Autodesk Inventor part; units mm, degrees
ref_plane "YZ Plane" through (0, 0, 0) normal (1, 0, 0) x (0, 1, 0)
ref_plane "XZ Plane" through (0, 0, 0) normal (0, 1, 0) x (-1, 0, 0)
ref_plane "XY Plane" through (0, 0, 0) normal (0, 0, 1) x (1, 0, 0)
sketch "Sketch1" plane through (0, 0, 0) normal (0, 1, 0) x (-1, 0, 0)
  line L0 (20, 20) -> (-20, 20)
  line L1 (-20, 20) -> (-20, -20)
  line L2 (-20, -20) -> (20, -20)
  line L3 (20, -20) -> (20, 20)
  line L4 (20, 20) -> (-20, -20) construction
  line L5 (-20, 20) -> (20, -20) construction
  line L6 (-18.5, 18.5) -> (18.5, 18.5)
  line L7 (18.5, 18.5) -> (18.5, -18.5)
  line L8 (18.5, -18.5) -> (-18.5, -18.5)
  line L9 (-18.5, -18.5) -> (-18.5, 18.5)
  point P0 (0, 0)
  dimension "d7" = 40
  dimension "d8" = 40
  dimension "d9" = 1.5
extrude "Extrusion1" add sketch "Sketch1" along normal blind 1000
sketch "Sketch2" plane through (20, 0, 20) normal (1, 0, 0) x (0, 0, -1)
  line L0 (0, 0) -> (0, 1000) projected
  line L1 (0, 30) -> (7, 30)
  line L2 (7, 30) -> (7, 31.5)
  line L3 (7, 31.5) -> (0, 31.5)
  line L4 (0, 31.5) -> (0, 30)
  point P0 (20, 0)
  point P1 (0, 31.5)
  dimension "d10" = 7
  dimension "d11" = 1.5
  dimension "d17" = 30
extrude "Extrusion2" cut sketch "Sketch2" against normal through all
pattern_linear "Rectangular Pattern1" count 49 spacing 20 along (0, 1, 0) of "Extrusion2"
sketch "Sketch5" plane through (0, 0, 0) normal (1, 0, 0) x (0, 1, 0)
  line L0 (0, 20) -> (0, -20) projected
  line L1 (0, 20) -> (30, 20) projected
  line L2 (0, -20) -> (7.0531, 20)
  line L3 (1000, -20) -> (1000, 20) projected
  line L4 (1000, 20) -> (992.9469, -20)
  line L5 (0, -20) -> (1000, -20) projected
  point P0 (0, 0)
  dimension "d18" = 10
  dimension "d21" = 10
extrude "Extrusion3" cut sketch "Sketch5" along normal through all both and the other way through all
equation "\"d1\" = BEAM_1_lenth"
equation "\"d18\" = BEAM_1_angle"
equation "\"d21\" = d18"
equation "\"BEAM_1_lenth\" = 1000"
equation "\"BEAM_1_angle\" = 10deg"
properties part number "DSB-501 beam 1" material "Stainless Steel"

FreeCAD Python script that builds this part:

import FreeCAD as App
import Part
import Sketcher
Q = App.Units.Quantity

doc = App.newDocument("Part")
params = doc.addObject("Spreadsheet::Sheet", "Params")
for row, (alias, value) in enumerate([
    ("sketch1_width", "40 mm"),
    ("pad1_length", "1000 mm"),
    ("sketch2_height", "7 mm"),
    ("sketch2_width", "1.5 mm"),
    ("linearpattern_pitch", "20 mm"),
    ("sketch3_height", "40 mm"),
], start=1):
    params.set(f"A{row}", alias)
    params.set(f"B{row}", "=" + value)
    params.setAlias(f"B{row}", alias)

body = doc.addObject("PartDesign::Body", "Body")

# Sketch on XZ plane
sketch1 = body.newObject("Sketcher::SketchObject", "Sketch")
sketch1.AttachmentSupport = (doc.getObject("XZ_Plane"), [""])
sketch1.MapMode = "FlatFace"
sketch1.addGeometry([
    Part.LineSegment(App.Vector(-20, -20, 0), App.Vector(-20, 20, 0)),  # 0
    Part.LineSegment(App.Vector(-20, 20, 0), App.Vector(20, 20, 0)),  # 1
    Part.LineSegment(App.Vector(20, 20, 0), App.Vector(20, -20, 0)),  # 2
    Part.LineSegment(App.Vector(20, -20, 0), App.Vector(-20, -20, 0)),  # 3
    Part.LineSegment(App.Vector(18, -18, 0), App.Vector(18, 18, 0)),  # 4
    Part.LineSegment(App.Vector(18, 18, 0), App.Vector(-18, 18, 0)),  # 5
    Part.LineSegment(App.Vector(-18, 18, 0), App.Vector(-18, -18, 0)),  # 6
    Part.LineSegment(App.Vector(-18, -18, 0), App.Vector(18, -18, 0)),  # 7
], False)
sketch1.addConstraint([
    Sketcher.Constraint("Coincident", 0, 2, 1, 1),
    Sketcher.Constraint("Coincident", 1, 2, 2, 1),
    Sketcher.Constraint("Coincident", 2, 2, 3, 1),
    Sketcher.Constraint("Coincident", 3, 2, 0, 1),
    Sketcher.Constraint("Coincident", 4, 2, 5, 1),
    Sketcher.Constraint("Coincident", 5, 2, 6, 1),
    Sketcher.Constraint("Coincident", 6, 2, 7, 1),
    Sketcher.Constraint("Coincident", 7, 2, 4, 1),
    Sketcher.Constraint("Vertical", 0),
    Sketcher.Constraint("Horizontal", 1),
    Sketcher.Constraint("Vertical", 2),
    Sketcher.Constraint("Horizontal", 3),
    Sketcher.Constraint("Vertical", 4),
    Sketcher.Constraint("Horizontal", 5),
    Sketcher.Constraint("Vertical", 6),
    Sketcher.Constraint("Horizontal", 7),
    Sketcher.Constraint("Symmetric", 0, 2, 2, 2, -1, 1),
    Sketcher.Constraint("Symmetric", 4, 2, 6, 2, -1, 1),
    Sketcher.Constraint("Equal", 3, 0),
    Sketcher.Constraint("Equal", 7, 4),
    Sketcher.Constraint("DistanceX", 1, 1, 1, 2, Q("40 mm")),
    Sketcher.Constraint("DistanceX", 4, 2, 1, 2, Q("1.5 mm")),
])
sketch1.setExpression("Constraints[20]", "Params.sketch1_width")
pad1 = body.newObject("PartDesign::Pad", "Pad")
pad1.Profile = sketch1
pad1.setExpression("Length", "Params.pad1_length")
pad1.Reversed = True

# Sketch on YZ plane
sketch2 = body.newObject("Sketcher::SketchObject", "Sketch001")
sketch2.AttachmentSupport = (doc.getObject("YZ_Plane"), [""])
sketch2.MapMode = "FlatFace"
sketch2.AttachmentOffset = App.Placement(App.Vector(0, 0, 20), App.Rotation())
sketch2.addGeometry([
    Part.LineSegment(App.Vector(31.5, 20, 0), App.Vector(30, 20, 0)),
    Part.LineSegment(App.Vector(30, 20, 0), App.Vector(30, 13, 0)),
    Part.LineSegment(App.Vector(30, 13, 0), App.Vector(31.5, 13, 0)),
    Part.LineSegment(App.Vector(31.5, 13, 0), App.Vector(31.5, 20, 0)),
], False)
sketch2.addConstraint([
    Sketcher.Constraint("Coincident", 0, 2, 1, 1),
    Sketcher.Constraint("Coincident", 1, 2, 2, 1),
    Sketcher.Constraint("Coincident", 2, 2, 3, 1),
    Sketcher.Constraint("Coincident", 3, 2, 0, 1),
    Sketcher.Constraint("Horizontal", 0),
    Sketcher.Constraint("Vertical", 1),
    Sketcher.Constraint("Horizontal", 2),
    Sketcher.Constraint("Vertical", 3),
    Sketcher.Constraint("DistanceY", 1, 2, 1, 1, Q("7 mm")),
    Sketcher.Constraint("DistanceX", 0, 2, 0, 1, Q("1.5 mm")),
    Sketcher.Constraint("DistanceX", -1, 1, 0, 2, Q("30 mm")),
    Sketcher.Constraint("DistanceY", -1, 1, 0, 2, Q("20 mm")),
])
sketch2.setExpression("Constraints[8]", "Params.sketch2_height")
sketch2.setExpression("Constraints[9]", "Params.sketch2_width")
pocket1 = body.newObject("PartDesign::Pocket", "Pocket")
pocket1.Profile = sketch2
pocket1.Type = "ThroughAll"
doc.recompute()

linearpattern = body.newObject("PartDesign::LinearPattern", "LinearPattern")
linearpattern.Originals = [pocket1]
linearpattern.Direction = (doc.getObject("Y_Axis"), [""])
linearpattern.Mode = "offset"
linearpattern.setExpression("Offset", "Params.linearpattern_pitch")
linearpattern.Occurrences = 49
body.Tip = linearpattern

# Sketch on YZ plane
sketch3 = body.newObject("Sketcher::SketchObject", "Sketch002")
sketch3.AttachmentSupport = (doc.getObject("YZ_Plane"), [""])
sketch3.MapMode = "FlatFace"
sketch3.addGeometry([
    Part.LineSegment(App.Vector(7, 20, 0), App.Vector(0, 20, 0)),  # 0
    Part.LineSegment(App.Vector(0, 20, 0), App.Vector(0, -20, 0)),  # 1
    Part.LineSegment(App.Vector(0, -20, 0), App.Vector(7, 20, 0)),  # 2
    Part.LineSegment(App.Vector(1000, 20, 0), App.Vector(993, -20, 0)),  # 3
    Part.LineSegment(App.Vector(993, -20, 0), App.Vector(1000, -20, 0)),  # 4
    Part.LineSegment(App.Vector(1000, -20, 0), App.Vector(1000, 20, 0)),  # 5
], False)
sketch3.addConstraint([
    Sketcher.Constraint("Coincident", 0, 2, 1, 1),
    Sketcher.Constraint("Coincident", 1, 2, 2, 1),
    Sketcher.Constraint("Coincident", 2, 2, 0, 1),
    Sketcher.Constraint("Coincident", 3, 2, 4, 1),
    Sketcher.Constraint("Coincident", 4, 2, 5, 1),
    Sketcher.Constraint("Coincident", 5, 2, 3, 1),
    Sketcher.Constraint("Horizontal", 0),
    Sketcher.Constraint("Vertical", 1),
    Sketcher.Constraint("Horizontal", 4),
    Sketcher.Constraint("Vertical", 5),
    Sketcher.Constraint("Symmetric", 0, 2, 1, 2, -1, 1),
    Sketcher.Constraint("Parallel", 2, 3),
    Sketcher.Constraint("Horizontal", 1, 2, 3, 2),
    Sketcher.Constraint("Horizontal", 2, 2, 5, 2),
    Sketcher.Constraint("DistanceY", 1, 2, 1, 1, Q("40 mm")),
    Sketcher.Constraint("Angle", 2, Q("80 deg")),
    Sketcher.Constraint("DistanceX", -1, 1, 4, 2, Q("1000 mm")),
])
sketch3.setExpression("Constraints[14]", "Params.sketch3_height")
pocket2 = body.newObject("PartDesign::Pocket", "Pocket001")
pocket2.Profile = sketch3
pocket2.Type = "ThroughAll"
pocket2.Midplane = True

doc.recompute()
